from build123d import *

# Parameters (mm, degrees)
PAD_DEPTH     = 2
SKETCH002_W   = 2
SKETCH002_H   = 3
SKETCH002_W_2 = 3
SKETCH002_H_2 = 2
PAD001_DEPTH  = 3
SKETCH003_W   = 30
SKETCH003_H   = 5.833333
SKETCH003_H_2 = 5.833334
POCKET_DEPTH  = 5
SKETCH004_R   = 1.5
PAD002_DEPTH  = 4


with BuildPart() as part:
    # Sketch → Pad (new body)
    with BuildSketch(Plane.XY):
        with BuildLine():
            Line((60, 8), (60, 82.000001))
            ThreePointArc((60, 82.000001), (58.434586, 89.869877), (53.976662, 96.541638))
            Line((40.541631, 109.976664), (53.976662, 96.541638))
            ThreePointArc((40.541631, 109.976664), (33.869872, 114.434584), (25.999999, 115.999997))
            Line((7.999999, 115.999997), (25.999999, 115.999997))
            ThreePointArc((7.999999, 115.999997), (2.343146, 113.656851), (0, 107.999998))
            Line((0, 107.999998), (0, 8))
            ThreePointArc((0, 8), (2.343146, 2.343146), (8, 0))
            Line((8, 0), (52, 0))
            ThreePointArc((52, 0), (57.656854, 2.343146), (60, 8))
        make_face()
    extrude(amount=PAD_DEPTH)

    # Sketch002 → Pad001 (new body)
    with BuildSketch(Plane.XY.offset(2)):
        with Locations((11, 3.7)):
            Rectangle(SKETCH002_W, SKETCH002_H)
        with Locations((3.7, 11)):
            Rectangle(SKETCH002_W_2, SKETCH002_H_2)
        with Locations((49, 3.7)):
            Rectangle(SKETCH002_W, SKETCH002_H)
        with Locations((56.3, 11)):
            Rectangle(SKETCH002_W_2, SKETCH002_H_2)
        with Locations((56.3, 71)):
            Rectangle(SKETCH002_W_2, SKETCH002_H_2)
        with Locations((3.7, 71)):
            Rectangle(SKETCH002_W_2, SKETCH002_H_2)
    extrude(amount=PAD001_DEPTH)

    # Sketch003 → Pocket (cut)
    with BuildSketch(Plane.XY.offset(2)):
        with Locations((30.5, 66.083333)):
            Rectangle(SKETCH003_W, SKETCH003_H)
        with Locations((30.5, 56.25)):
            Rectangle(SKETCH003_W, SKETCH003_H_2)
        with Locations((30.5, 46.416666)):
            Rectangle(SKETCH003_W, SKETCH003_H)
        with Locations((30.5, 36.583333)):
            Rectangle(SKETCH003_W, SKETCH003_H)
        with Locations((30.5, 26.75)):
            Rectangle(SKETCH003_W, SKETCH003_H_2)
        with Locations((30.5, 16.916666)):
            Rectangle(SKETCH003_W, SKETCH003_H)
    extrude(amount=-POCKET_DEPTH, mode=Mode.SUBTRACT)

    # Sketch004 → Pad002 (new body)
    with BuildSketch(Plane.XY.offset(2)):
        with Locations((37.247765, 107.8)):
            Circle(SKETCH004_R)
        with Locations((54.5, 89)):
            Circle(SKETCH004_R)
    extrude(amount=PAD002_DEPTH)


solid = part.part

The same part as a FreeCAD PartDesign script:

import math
import FreeCAD as App
import Part
import Sketcher
Q = App.Units.Quantity


def add_polygon(sketch, points):
    """Adds a closed chain of lines whose ends are joined by coincident constraints."""
    first, n = sketch.GeometryCount, len(points)
    for a, b in zip(points, points[1:] + points[:1]):
        sketch.addGeometry(Part.LineSegment(App.Vector(*a, 0), App.Vector(*b, 0)), False)
    for i in range(n):
        sketch.addConstraint(Sketcher.Constraint("Coincident", first + i, 2, first + (i + 1) % n, 1))

doc = App.newDocument("Part")
body = doc.addObject("PartDesign::Body", "Body")

# Sketch on XY plane
sketch1 = body.newObject("Sketcher::SketchObject", "Sketch")
sketch1.AttachmentSupport = (doc.getObject("XY_Plane"), [""])
sketch1.MapMode = "FlatFace"
sketch1.addGeometry([
    Part.LineSegment(App.Vector(60, 8, 0), App.Vector(60, 82.000001, 0)),  # 0
    Part.ArcOfCircle(Part.Circle(App.Vector(39.435011, 82.000003, 0), App.Vector(0, 0, 1), 20.564989), math.radians(-0.000005), math.radians(44.999969)),  # 1
    Part.LineSegment(App.Vector(53.976662, 96.541638, 0), App.Vector(40.541631, 109.976664, 0)),  # 2
    Part.ArcOfCircle(Part.Circle(App.Vector(26, 95.435005, 0), App.Vector(0, 0, 1), 20.564992), math.radians(45.000054), math.radians(90.000001)),  # 3
    Part.LineSegment(App.Vector(25.999999, 115.999997, 0), App.Vector(7.999999, 115.999997, 0)),  # 4
    Part.ArcOfCircle(Part.Circle(App.Vector(8.000001, 107.999996, 0), App.Vector(0, 0, 1), 8.000001), math.radians(90.000013), math.radians(179.999987)),  # 5
    Part.LineSegment(App.Vector(0, 107.999998, 0), App.Vector(0, 8, 0)),  # 6
    Part.ArcOfCircle(Part.Circle(App.Vector(8.000001, 8.000001, 0), App.Vector(0, 0, 1), 8.000001), math.radians(-179.999994), math.radians(-90.000006)),  # 7
    Part.LineSegment(App.Vector(8, 0, 0), App.Vector(52, 0, 0)),  # 8
    Part.ArcOfCircle(Part.Circle(App.Vector(51.999999, 8.000001, 0), App.Vector(0, 0, 1), 8.000001), math.radians(-89.999994), math.radians(-0.000006)),  # 9
], False)
sketch1.addConstraint([
    Sketcher.Constraint("Coincident", 0, 2, 1, 1),
    Sketcher.Constraint("Coincident", 1, 2, 2, 1),
    Sketcher.Constraint("Coincident", 2, 2, 3, 1),
    Sketcher.Constraint("Coincident", 3, 2, 4, 1),
    Sketcher.Constraint("Coincident", 4, 2, 5, 1),
    Sketcher.Constraint("Coincident", 5, 2, 6, 1),
    Sketcher.Constraint("Coincident", 6, 2, 7, 1),
    Sketcher.Constraint("Coincident", 7, 2, 8, 1),
    Sketcher.Constraint("Coincident", 8, 2, 9, 1),
    Sketcher.Constraint("Coincident", 9, 2, 0, 1),
    Sketcher.Constraint("Vertical", 0),
    Sketcher.Constraint("Horizontal", 4),
    Sketcher.Constraint("Vertical", 6),
    Sketcher.Constraint("Horizontal", 8),
    Sketcher.Constraint("PointOnObject", 5, 2, -2),
    Sketcher.Constraint("PointOnObject", 7, 2, -1),
    Sketcher.Constraint("Radius", 5, Q("8.000001 mm")),
    Sketcher.Constraint("Radius", 7, Q("8.000001 mm")),
    Sketcher.Constraint("Radius", 9, Q("8.000001 mm")),
    Sketcher.Constraint("DistanceX", 4, 2, 4, 1, Q("18 mm")),
    Sketcher.Constraint("DistanceX", 8, 1, 8, 2, Q("44 mm")),
    Sketcher.Constraint("DistanceY", 0, 1, 0, 2, Q("74.000001 mm")),
    Sketcher.Constraint("DistanceY", 6, 2, 6, 1, Q("99.999998 mm")),
    Sketcher.Constraint("Distance", 2, Q("19 mm")),
    Sketcher.Constraint("DistanceX", -1, 1, 3, 3, Q("26 mm")),
    Sketcher.Constraint("DistanceX", -1, 1, 9, 3, Q("51.999999 mm")),
    Sketcher.Constraint("DistanceY", -1, 1, 0, 2, Q("82.000001 mm")),
    Sketcher.Constraint("DistanceX", -1, 1, 3, 2, Q("25.999999 mm")),
    Sketcher.Constraint("DistanceY", -1, 1, 5, 2, Q("107.999998 mm")),
    Sketcher.Constraint("DistanceX", -1, 1, 7, 2, Q("8 mm")),
    Sketcher.Constraint("DistanceY", 7, 3, 1, 3, Q("74.000002 mm")),
    Sketcher.Constraint("DistanceY", 5, 2, 4, 2, Q("7.999999 mm")),
    Sketcher.Constraint("Radius", 1, Q("20.564989 mm")),
    Sketcher.Constraint("Radius", 3, Q("20.564992 mm")),
    Sketcher.Constraint("DistanceY", -1, 1, 1, 2, Q("96.541638 mm")),
])
pad1 = body.newObject("PartDesign::Pad", "Pad")
pad1.Profile = sketch1
pad1.Length = 2

# Sketch on XY plane
sketch2 = body.newObject("Sketcher::SketchObject", "Sketch001")
sketch2.AttachmentSupport = (doc.getObject("XY_Plane"), [""])
sketch2.MapMode = "FlatFace"
sketch2.AttachmentOffset = App.Placement(App.Vector(0, 0, 2), App.Rotation())
add_polygon(sketch2, [(10, 5.2), (10, 2.2), (12, 2.2), (12, 5.2)])  # lines 0-3
add_polygon(sketch2, [(2.2, 12), (2.2, 10), (5.2, 10), (5.2, 12)])  # lines 4-7
add_polygon(sketch2, [(48, 5.2), (48, 2.2), (50, 2.2), (50, 5.2)])  # lines 8-11
add_polygon(sketch2, [(54.8, 12), (54.8, 10), (57.8, 10), (57.8, 12)])  # lines 12-15
add_polygon(sketch2, [(54.8, 72), (54.8, 70), (57.8, 70), (57.8, 72)])  # lines 16-19
add_polygon(sketch2, [(2.2, 72), (2.2, 70), (5.2, 70), (5.2, 72)])  # lines 20-23
sketch2.addConstraint([
    Sketcher.Constraint("Vertical", 0),
    Sketcher.Constraint("Horizontal", 1),
    Sketcher.Constraint("Vertical", 2),
    Sketcher.Constraint("Horizontal", 3),
    Sketcher.Constraint("Vertical", 4),
    Sketcher.Constraint("Horizontal", 5),
    Sketcher.Constraint("Vertical", 6),
    Sketcher.Constraint("Horizontal", 7),
    Sketcher.Constraint("Vertical", 8),
    Sketcher.Constraint("Horizontal", 9),
    Sketcher.Constraint("Vertical", 10),
    Sketcher.Constraint("Horizontal", 11),
    Sketcher.Constraint("Vertical", 12),
    Sketcher.Constraint("Horizontal", 13),
    Sketcher.Constraint("Vertical", 14),
    Sketcher.Constraint("Horizontal", 15),
    Sketcher.Constraint("Vertical", 16),
    Sketcher.Constraint("Horizontal", 17),
    Sketcher.Constraint("Vertical", 18),
    Sketcher.Constraint("Horizontal", 19),
    Sketcher.Constraint("Vertical", 20),
    Sketcher.Constraint("Horizontal", 21),
    Sketcher.Constraint("Vertical", 22),
    Sketcher.Constraint("Horizontal", 23),
    Sketcher.Constraint("Horizontal", 1, 2, 8, 2),
    Sketcher.Constraint("Horizontal", 3, 2, 10, 2),
    Sketcher.Constraint("Horizontal", 5, 2, 12, 2),
    Sketcher.Constraint("Horizontal", 7, 2, 14, 2),
    Sketcher.Constraint("Horizontal", 17, 2, 20, 2),
    Sketcher.Constraint("Horizontal", 19, 2, 22, 2),
    Sketcher.Constraint("Vertical", 15, 2, 16, 2),
    Sketcher.Constraint("Vertical", 14, 2, 17, 2),
    Sketcher.Constraint("Vertical", 7, 2, 20, 2),
    Sketcher.Constraint("Vertical", 6, 2, 21, 2),
    Sketcher.Constraint("Equal", 3, 9),
    Sketcher.Constraint("Equal", 7, 13),
    Sketcher.Constraint("Equal", 23, 0),
    Sketcher.Constraint("Equal", 11, 4),
    Sketcher.Constraint("Equal", 14, 16),
    Sketcher.Constraint("DistanceX", 1, 1, 1, 2, Q("2 mm")),
    Sketcher.Constraint("DistanceX", 5, 1, 5, 2, Q("3 mm")),
    Sketcher.Constraint("DistanceX", -1, 1, 0, 2, Q("10 mm")),
    Sketcher.Constraint("DistanceY", -1, 1, 4, 2, Q("10 mm")),
    Sketcher.Constraint("DistanceX", -1, 1, 8, 2, Q("48 mm")),
    Sketcher.Constraint("DistanceY", -1, 1, 16, 2, Q("70 mm")),
    Sketcher.Constraint("DistanceY", -1, 1, 0, 2, Q("2.2 mm")),
    Sketcher.Constraint("DistanceX", -1, 1, 4, 2, Q("2.2 mm")),
    Sketcher.Constraint("DistanceX", -1, 1, 12, 2, Q("54.8 mm")),
])
pad2 = body.newObject("PartDesign::Pad", "Pad001")
pad2.Profile = sketch2
pad2.Length = 3

# Sketch on XY plane
sketch3 = body.newObject("Sketcher::SketchObject", "Sketch002")
sketch3.AttachmentSupport = (doc.getObject("XY_Plane"), [""])
sketch3.MapMode = "FlatFace"
sketch3.AttachmentOffset = App.Placement(App.Vector(0, 0, 2), App.Rotation())
add_polygon(sketch3, [(16, 69), (16, 63), (46, 63), (46, 69)])  # lines 0-3
add_polygon(sketch3, [(16, 59), (16, 53), (46, 53), (46, 59)])  # lines 4-7
add_polygon(sketch3, [(16, 49), (16, 43), (46, 43), (46, 49)])  # lines 8-11
add_polygon(sketch3, [(16, 39), (16, 34), (46, 34), (46, 39)])  # lines 12-15
add_polygon(sketch3, [(16, 30), (16, 24), (46, 24), (46, 30)])  # lines 16-19
add_polygon(sketch3, [(16, 20), (16, 14), (46, 14), (46, 20)])  # lines 20-23
sketch3.addConstraint([
    Sketcher.Constraint("Vertical", 0),
    Sketcher.Constraint("Horizontal", 1),
    Sketcher.Constraint("Vertical", 2),
    Sketcher.Constraint("Horizontal", 3),
    Sketcher.Constraint("Vertical", 4),
    Sketcher.Constraint("Horizontal", 5),
    Sketcher.Constraint("Vertical", 6),
    Sketcher.Constraint("Horizontal", 7),
    Sketcher.Constraint("Vertical", 8),
    Sketcher.Constraint("Horizontal", 9),
    Sketcher.Constraint("Vertical", 10),
    Sketcher.Constraint("Horizontal", 11),
    Sketcher.Constraint("Vertical", 12),
    Sketcher.Constraint("Horizontal", 13),
    Sketcher.Constraint("Vertical", 14),
    Sketcher.Constraint("Horizontal", 15),
    Sketcher.Constraint("Vertical", 16),
    Sketcher.Constraint("Horizontal", 17),
    Sketcher.Constraint("Vertical", 18),
    Sketcher.Constraint("Horizontal", 19),
    Sketcher.Constraint("Vertical", 20),
    Sketcher.Constraint("Horizontal", 21),
    Sketcher.Constraint("Vertical", 22),
    Sketcher.Constraint("Horizontal", 23),
    Sketcher.Constraint("Vertical", 3, 2, 4, 2),
    Sketcher.Constraint("Vertical", 2, 2, 5, 2),
    Sketcher.Constraint("Vertical", 7, 2, 8, 2),
    Sketcher.Constraint("Vertical", 6, 2, 9, 2),
    Sketcher.Constraint("Vertical", 11, 2, 12, 2),
    Sketcher.Constraint("Vertical", 10, 2, 13, 2),
    Sketcher.Constraint("Vertical", 15, 2, 16, 2),
    Sketcher.Constraint("Vertical", 14, 2, 17, 2),
    Sketcher.Constraint("Vertical", 19, 2, 20, 2),
    Sketcher.Constraint("Vertical", 18, 2, 21, 2),
    Sketcher.Constraint("Equal", 2, 4),
    Sketcher.Constraint("Equal", 6, 8),
    Sketcher.Constraint("Equal", 10, 12),
    Sketcher.Constraint("Equal", 14, 16),
    Sketcher.Constraint("Equal", 18, 20),
    Sketcher.Constraint("DistanceX", 1, 1, 1, 2, Q("30 mm")),
    Sketcher.Constraint("DistanceY", -1, 1, 2, 2, Q("69 mm")),
    Sketcher.Constraint("DistanceY", -1, 1, 20, 2, Q("13.999999 mm")),
    Sketcher.Constraint("DistanceY", 6, 2, 1, 2, Q("4 mm")),
    Sketcher.Constraint("DistanceY", 10, 2, 5, 2, Q("4.000001 mm")),
    Sketcher.Constraint("DistanceY", 14, 2, 9, 2, Q("4 mm")),
    Sketcher.Constraint("DistanceY", 18, 2, 13, 2, Q("3.999999 mm")),
    Sketcher.Constraint("DistanceY", 22, 2, 17, 2, Q("4 mm")),
    Sketcher.Constraint("DistanceX", -1, 1, 0, 2, Q("15.5 mm")),
])
pocket1 = body.newObject("PartDesign::Pocket", "Pocket")
pocket1.Profile = sketch3
pocket1.Length = 5

# Sketch on XY plane
sketch4 = body.newObject("Sketcher::SketchObject", "Sketch003")
sketch4.AttachmentSupport = (doc.getObject("XY_Plane"), [""])
sketch4.MapMode = "FlatFace"
sketch4.AttachmentOffset = App.Placement(App.Vector(0, 0, 2), App.Rotation())
sketch4.addGeometry([
    Part.Circle(App.Vector(37.2, 107.8, 0), App.Vector(0, 0, 1), 1.5),
    Part.Circle(App.Vector(54.5, 89, 0), App.Vector(0, 0, 1), 1.5),
], False)
sketch4.addConstraint([
    Sketcher.Constraint("Equal", 0, 1),
    Sketcher.Constraint("Diameter", 0, Q("3 mm")),
    Sketcher.Constraint("DistanceY", -1, 1, 1, 3, Q("89 mm")),
    Sketcher.Constraint("DistanceY", -1, 1, 0, 3, Q("107.8 mm")),
    Sketcher.Constraint("DistanceX", -1, 1, 1, 3, Q("54.5 mm")),
    Sketcher.Constraint("DistanceX", -1, 1, 0, 3, Q("37.247765 mm")),
])
pad3 = body.newObject("PartDesign::Pad", "Pad002")
pad3.Profile = sketch4
pad3.Length = 4

doc.recompute()
